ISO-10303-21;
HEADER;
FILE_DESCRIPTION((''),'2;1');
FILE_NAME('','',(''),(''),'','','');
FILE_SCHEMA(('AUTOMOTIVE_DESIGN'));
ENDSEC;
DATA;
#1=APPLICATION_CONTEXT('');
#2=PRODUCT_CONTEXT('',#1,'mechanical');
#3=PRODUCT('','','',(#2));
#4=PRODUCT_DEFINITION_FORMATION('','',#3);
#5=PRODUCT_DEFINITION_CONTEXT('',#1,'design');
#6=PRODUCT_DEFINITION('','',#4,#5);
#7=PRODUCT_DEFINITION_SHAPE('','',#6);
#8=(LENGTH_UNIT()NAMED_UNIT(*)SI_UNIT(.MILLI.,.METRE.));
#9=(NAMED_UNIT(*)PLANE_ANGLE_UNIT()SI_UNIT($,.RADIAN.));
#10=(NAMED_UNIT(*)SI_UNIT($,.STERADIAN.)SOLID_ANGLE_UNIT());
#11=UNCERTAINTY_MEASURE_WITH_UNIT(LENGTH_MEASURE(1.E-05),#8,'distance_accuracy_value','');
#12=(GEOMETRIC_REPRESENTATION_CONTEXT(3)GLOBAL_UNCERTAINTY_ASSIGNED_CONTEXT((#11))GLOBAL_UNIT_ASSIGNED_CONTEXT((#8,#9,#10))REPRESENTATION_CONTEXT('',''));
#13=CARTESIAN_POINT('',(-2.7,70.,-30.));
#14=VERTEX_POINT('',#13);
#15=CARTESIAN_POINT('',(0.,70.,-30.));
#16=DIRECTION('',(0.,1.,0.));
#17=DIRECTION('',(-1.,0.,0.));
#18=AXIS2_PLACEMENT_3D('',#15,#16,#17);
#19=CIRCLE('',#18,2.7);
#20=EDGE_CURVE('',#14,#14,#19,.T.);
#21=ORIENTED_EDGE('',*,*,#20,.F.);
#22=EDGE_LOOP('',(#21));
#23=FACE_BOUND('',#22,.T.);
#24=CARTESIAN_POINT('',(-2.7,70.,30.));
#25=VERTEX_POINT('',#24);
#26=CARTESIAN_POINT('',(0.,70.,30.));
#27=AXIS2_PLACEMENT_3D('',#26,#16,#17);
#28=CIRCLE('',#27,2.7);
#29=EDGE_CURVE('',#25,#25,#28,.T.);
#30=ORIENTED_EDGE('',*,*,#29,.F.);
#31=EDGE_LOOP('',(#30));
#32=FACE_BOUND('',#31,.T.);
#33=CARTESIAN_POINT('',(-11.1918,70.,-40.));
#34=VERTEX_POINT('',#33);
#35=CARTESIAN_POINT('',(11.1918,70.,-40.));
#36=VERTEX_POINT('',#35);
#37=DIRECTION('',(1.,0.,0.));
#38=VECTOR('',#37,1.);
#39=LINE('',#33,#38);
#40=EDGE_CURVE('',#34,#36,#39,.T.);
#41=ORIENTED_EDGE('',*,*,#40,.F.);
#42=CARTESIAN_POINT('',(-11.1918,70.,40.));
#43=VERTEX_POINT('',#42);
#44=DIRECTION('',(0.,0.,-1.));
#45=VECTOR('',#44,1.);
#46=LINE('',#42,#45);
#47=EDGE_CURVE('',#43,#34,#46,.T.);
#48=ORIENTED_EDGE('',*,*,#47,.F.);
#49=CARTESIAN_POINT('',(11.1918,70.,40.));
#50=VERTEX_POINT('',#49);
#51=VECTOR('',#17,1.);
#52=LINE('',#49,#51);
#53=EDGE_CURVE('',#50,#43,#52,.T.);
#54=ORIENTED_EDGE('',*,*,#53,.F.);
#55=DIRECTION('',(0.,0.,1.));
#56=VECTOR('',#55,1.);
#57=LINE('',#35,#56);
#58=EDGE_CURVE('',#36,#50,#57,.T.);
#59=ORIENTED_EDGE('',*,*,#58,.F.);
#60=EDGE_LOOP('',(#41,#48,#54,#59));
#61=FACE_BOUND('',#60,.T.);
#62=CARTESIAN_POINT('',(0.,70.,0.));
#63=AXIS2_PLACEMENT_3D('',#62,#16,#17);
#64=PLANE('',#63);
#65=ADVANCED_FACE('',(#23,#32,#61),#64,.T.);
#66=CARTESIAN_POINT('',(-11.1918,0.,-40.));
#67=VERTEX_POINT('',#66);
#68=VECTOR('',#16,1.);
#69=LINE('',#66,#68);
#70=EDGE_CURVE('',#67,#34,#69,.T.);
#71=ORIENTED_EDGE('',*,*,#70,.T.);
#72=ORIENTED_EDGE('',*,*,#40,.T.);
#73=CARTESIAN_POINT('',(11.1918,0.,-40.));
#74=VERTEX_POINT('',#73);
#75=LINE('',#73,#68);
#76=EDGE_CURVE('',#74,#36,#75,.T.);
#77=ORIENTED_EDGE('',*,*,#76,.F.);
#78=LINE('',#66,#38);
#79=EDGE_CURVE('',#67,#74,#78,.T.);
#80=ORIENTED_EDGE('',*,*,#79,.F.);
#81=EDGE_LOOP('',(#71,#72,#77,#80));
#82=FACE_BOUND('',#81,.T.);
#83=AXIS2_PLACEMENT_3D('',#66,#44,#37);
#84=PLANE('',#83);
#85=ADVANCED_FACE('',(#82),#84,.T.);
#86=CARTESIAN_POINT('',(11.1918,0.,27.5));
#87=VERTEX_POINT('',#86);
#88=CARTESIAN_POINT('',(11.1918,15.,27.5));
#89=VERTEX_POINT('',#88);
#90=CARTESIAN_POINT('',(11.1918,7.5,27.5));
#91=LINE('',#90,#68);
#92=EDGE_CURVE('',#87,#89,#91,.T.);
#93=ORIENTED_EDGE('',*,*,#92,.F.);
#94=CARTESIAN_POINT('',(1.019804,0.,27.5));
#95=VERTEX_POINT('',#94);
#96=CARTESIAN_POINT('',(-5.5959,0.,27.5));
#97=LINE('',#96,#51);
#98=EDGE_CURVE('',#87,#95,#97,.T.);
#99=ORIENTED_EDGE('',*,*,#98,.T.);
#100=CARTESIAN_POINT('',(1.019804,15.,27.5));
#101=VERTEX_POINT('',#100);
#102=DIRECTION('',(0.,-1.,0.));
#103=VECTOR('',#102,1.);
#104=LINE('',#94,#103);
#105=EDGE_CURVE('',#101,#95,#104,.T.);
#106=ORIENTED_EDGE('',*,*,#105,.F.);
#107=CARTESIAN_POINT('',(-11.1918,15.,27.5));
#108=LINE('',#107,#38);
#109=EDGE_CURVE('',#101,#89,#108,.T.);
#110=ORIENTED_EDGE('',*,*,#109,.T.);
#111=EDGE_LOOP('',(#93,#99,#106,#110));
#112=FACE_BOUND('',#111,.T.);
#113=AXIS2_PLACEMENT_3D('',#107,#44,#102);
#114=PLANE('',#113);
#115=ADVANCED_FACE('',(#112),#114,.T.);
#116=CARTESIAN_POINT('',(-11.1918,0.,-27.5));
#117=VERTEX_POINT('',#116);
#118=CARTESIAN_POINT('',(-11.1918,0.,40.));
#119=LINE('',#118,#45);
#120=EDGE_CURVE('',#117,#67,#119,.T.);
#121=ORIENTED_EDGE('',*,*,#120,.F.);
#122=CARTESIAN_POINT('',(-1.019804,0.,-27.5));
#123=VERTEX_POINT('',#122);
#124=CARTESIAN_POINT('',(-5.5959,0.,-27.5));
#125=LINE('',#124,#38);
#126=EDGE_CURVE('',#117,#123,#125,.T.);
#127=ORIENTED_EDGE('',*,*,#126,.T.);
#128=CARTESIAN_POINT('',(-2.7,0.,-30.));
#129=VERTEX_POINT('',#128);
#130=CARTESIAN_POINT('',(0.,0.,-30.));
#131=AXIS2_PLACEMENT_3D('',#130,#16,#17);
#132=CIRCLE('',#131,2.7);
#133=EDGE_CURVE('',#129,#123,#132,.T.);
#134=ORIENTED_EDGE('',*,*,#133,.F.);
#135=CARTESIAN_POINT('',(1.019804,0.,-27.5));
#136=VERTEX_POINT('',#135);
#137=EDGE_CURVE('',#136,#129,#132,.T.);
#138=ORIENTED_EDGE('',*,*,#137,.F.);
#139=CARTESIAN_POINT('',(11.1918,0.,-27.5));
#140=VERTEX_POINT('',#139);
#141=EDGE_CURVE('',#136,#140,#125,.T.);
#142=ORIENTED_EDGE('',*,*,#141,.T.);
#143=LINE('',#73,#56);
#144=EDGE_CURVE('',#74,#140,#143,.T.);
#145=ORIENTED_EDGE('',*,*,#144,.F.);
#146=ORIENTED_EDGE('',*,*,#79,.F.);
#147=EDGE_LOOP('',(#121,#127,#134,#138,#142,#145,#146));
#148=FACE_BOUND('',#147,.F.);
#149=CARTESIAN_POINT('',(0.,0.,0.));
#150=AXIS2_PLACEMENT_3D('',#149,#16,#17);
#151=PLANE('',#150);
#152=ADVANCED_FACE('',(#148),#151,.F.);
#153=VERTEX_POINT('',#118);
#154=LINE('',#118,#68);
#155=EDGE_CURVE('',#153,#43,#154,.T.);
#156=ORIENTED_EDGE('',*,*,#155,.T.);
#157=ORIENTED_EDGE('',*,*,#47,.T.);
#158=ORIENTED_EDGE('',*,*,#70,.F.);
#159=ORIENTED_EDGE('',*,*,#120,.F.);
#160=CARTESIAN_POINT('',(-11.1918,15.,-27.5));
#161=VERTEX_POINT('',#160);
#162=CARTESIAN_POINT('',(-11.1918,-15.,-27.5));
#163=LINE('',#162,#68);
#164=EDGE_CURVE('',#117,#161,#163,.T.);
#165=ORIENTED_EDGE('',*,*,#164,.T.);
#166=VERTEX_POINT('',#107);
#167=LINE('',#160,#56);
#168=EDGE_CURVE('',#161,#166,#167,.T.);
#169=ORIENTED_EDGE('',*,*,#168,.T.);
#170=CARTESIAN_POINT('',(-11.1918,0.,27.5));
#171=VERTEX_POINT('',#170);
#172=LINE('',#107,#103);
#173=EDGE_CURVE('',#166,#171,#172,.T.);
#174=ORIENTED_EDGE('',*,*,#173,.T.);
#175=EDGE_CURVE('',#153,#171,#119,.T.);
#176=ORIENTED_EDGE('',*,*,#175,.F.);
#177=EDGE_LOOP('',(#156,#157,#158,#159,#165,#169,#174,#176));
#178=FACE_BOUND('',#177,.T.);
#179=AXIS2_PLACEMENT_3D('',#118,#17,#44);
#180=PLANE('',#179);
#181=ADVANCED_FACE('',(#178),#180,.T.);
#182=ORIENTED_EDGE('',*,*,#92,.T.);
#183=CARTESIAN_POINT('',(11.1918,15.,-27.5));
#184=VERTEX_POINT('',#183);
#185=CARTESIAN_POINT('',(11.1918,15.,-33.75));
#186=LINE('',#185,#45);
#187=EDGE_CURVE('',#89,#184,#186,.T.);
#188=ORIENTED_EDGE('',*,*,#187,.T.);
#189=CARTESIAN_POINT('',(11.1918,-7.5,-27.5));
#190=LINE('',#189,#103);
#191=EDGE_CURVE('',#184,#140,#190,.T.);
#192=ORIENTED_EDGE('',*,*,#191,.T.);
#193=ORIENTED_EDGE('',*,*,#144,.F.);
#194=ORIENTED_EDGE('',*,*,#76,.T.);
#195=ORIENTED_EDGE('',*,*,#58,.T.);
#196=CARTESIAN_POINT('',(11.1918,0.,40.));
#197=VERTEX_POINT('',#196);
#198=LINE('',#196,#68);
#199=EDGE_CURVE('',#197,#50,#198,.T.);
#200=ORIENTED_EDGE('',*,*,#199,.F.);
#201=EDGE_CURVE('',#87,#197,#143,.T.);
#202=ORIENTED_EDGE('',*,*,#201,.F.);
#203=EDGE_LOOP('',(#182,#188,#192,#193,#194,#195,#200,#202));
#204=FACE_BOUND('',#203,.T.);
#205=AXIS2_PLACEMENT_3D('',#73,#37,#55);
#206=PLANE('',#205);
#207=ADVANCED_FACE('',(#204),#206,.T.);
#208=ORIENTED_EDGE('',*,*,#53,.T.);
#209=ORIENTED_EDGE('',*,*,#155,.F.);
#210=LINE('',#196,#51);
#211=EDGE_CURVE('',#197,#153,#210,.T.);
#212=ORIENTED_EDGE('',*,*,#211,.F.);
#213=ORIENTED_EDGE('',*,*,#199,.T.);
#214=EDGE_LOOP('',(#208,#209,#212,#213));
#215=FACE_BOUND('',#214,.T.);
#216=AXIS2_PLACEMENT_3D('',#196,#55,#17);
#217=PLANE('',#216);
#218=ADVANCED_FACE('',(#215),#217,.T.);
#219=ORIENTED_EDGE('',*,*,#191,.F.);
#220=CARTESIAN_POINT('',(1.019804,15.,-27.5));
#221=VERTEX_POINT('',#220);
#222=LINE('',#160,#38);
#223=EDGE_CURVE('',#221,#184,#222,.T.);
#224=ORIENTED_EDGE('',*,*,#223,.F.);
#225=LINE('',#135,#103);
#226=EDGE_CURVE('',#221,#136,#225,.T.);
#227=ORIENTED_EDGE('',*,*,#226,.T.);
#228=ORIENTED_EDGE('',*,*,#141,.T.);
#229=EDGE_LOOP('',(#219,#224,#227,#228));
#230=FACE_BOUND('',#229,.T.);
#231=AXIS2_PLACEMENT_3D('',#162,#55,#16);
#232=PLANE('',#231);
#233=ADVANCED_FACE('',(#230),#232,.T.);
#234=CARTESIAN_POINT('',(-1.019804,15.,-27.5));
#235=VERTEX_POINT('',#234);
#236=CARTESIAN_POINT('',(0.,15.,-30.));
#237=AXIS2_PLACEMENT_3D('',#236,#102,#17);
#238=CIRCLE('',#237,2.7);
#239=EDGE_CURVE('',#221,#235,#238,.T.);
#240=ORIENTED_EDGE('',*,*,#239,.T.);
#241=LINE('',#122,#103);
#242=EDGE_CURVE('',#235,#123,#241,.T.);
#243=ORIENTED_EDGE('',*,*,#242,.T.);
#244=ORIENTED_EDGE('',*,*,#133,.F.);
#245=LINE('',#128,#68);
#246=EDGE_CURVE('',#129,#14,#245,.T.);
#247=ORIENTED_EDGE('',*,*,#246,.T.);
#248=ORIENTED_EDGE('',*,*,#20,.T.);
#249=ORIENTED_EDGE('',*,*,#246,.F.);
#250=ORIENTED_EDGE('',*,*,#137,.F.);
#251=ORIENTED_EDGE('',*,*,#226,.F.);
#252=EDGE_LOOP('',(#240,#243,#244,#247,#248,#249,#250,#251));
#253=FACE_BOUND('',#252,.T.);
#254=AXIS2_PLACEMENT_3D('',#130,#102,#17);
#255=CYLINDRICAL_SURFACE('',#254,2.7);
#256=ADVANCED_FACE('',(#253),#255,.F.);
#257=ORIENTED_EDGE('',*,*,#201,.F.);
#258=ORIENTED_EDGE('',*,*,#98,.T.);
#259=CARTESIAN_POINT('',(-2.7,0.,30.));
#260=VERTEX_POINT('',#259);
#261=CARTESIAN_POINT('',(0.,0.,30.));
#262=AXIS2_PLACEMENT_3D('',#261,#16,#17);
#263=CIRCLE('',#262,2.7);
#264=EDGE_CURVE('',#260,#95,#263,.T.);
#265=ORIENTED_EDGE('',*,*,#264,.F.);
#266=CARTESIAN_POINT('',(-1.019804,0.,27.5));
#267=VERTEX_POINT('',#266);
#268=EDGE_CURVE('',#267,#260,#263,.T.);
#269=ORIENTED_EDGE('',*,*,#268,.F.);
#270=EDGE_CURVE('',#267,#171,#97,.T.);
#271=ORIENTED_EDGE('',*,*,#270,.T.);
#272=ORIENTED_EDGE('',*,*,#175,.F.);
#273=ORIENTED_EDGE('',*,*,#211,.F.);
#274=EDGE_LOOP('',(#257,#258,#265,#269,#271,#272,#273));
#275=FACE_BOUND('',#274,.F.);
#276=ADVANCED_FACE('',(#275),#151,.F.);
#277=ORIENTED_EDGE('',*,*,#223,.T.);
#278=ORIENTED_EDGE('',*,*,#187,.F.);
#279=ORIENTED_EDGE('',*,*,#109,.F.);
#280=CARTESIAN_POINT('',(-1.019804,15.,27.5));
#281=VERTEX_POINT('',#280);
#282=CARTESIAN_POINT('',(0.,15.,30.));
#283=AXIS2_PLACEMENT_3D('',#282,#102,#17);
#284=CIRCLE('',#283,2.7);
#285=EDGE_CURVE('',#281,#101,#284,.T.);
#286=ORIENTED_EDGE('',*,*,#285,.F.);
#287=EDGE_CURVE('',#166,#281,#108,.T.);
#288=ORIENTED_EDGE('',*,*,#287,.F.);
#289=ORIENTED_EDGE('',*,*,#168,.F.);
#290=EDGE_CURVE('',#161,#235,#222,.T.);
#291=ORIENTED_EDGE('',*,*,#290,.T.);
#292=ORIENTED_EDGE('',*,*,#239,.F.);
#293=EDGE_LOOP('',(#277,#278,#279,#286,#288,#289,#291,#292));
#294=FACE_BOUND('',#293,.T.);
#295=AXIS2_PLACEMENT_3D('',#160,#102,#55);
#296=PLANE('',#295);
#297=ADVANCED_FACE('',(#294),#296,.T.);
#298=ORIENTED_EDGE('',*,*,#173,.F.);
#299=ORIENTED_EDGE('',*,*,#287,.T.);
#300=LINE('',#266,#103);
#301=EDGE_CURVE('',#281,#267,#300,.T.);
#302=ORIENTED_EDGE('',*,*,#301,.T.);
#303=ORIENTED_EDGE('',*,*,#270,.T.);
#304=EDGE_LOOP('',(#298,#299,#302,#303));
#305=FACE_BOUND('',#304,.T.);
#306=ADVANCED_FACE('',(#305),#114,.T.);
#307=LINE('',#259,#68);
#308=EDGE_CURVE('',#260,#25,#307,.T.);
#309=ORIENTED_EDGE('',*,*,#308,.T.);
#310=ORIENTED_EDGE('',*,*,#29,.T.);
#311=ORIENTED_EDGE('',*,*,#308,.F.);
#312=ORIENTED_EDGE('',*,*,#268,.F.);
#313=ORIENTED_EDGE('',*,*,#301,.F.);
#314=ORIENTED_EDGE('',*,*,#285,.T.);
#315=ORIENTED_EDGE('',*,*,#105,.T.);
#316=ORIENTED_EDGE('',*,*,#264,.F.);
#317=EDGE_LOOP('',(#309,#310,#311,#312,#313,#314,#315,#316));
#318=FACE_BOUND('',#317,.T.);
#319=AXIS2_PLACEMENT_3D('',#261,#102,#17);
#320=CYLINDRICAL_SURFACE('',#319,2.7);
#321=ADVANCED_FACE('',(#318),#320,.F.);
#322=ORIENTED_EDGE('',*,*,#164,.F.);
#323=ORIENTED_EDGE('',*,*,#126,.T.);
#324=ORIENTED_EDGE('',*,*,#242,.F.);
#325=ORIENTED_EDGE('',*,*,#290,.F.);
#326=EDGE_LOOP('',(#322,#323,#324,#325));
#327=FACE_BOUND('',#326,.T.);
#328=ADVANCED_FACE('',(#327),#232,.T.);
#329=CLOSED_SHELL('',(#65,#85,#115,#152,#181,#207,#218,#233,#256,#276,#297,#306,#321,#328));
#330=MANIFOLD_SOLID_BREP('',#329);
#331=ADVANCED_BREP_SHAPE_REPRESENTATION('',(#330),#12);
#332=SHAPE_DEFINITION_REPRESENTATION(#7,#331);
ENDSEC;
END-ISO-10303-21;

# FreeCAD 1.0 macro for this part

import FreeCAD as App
import Part
import Sketcher

V = App.Vector


def add_polygon(sketch, points):
    """Adds a closed chain of lines whose ends are joined by coincident constraints."""
    first, n = sketch.GeometryCount, len(points)
    for a, b in zip(points, points[1:] + points[:1]):
        sketch.addGeometry(Part.LineSegment(App.Vector(*a, 0), App.Vector(*b, 0)), False)
    for i in range(n):
        sketch.addConstraint(Sketcher.Constraint("Coincident", first + i, 2, first + (i + 1) % n, 1))

doc = App.newDocument("Part")
params = doc.addObject("Spreadsheet::Sheet", "Params")
for row, (alias, value) in enumerate([
    ("sketch1_diameter", "5.4 mm"),
    ("sketch1_height", "80 mm"),
    ("pad1_length", "70 mm"),
    ("sketch2_width", "30 mm"),
    ("sketch2_height", "55 mm"),
], start=1):
    params.set(f"A{row}", alias)
    params.set(f"B{row}", "=" + value)
    params.setAlias(f"B{row}", alias)

body = doc.addObject("PartDesign::Body", "Body")

sketch1 = body.newObject("Sketcher::SketchObject", "Sketch")
sketch1.AttachmentSupport = (doc.getObject("XZ_Plane"), [""])
sketch1.MapMode = "FlatFace"
add_polygon(sketch1, [(-11.1918, 40), (11.1918, 40), (11.1918, -40), (-11.1918, -40)])
sketch1.addGeometry(Part.Circle(V(0, -30, 0), V(0, 0, 1), 2.7), False)
sketch1.addGeometry(Part.Circle(V(0, 30, 0), V(0, 0, 1), 2.7), False)
sketch1.addConstraint([
    Sketcher.Constraint("Horizontal", 0),
    Sketcher.Constraint("Vertical", 1),
    Sketcher.Constraint("Horizontal", 2),
    Sketcher.Constraint("Vertical", 3),
    Sketcher.Constraint("Equal", 4, 5),
    Sketcher.Constraint("Symmetric", 4, 3, 5, 3, -1, 1),
    Sketcher.Constraint("Symmetric", 0, 2, 2, 2, -1, 1),
    Sketcher.Constraint("PointOnObject", 4, 3, -2),
    Sketcher.Constraint("Diameter", 4, 5.4),
    Sketcher.Constraint("DistanceY", 1, 2, 1, 1, 80.0),
    Sketcher.Constraint("DistanceY", 5, 3, 0, 2, 10.0),
    Sketcher.Constraint("DistanceX", 0, 1, 0, 2, 22.3836),
])
sketch1.setExpression("Constraints[12]", "Params.sketch1_diameter")
sketch1.setExpression("Constraints[13]", "Params.sketch1_height")
pad1 = body.newObject("PartDesign::Pad", "Pad")
pad1.Profile = sketch1
pad1.setExpression("Length", "Params.pad1_length")
pad1.Reversed = True

sketch2 = body.newObject("Sketcher::SketchObject", "Sketch001")
sketch2.AttachmentSupport = (doc.getObject("YZ_Plane"), [""])
sketch2.MapMode = "FlatFace"
sketch2.AttachmentOffset = App.Placement(V(0, 0, -11.1918), App.Rotation())
add_polygon(sketch2, [(-15, -27.5), (-15, 27.5), (15, 27.5), (15, -27.5)])
sketch2.addConstraint([
    Sketcher.Constraint("Vertical", 0),
    Sketcher.Constraint("Horizontal", 1),
    Sketcher.Constraint("Vertical", 2),
    Sketcher.Constraint("Horizontal", 3),
    Sketcher.Constraint("Symmetric", 0, 2, 2, 2, -1, 1),
    Sketcher.Constraint("DistanceX", 1, 1, 1, 2, 30.0),
    Sketcher.Constraint("DistanceY", 0, 1, 0, 2, 55.0),
])
sketch2.setExpression("Constraints[9]", "Params.sketch2_width")
sketch2.setExpression("Constraints[10]", "Params.sketch2_height")
pocket1 = body.newObject("PartDesign::Pocket", "Pocket")
pocket1.Profile = sketch2
pocket1.Type = "ThroughAll"
pocket1.Reversed = True

doc.recompute()
